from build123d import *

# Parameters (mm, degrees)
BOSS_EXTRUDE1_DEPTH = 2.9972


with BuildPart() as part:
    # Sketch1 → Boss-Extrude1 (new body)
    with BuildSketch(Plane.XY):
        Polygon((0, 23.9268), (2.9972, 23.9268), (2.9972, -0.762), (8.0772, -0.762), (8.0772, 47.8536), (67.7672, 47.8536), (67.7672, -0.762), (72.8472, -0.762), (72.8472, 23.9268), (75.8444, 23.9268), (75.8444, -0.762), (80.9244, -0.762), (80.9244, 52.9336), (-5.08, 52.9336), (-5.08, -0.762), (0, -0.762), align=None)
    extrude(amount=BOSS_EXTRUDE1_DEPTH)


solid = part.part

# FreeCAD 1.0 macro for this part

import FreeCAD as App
import Part
import Sketcher
from FreeCAD import Vector
Q = App.Units.Quantity


def add_polygon(sketch, points):
    """Adds a closed chain of lines whose ends are joined by coincident constraints."""
    first, n = sketch.GeometryCount, len(points)
    for a, b in zip(points, points[1:] + points[:1]):
        sketch.addGeometry(Part.LineSegment(App.Vector(*a, 0), App.Vector(*b, 0)), False)
    for i in range(n):
        sketch.addConstraint(Sketcher.Constraint("Coincident", first + i, 2, first + (i + 1) % n, 1))

doc = App.newDocument("Part")
body = doc.addObject("PartDesign::Body", "Body")

# Sketch on XY plane
sketch1 = body.newObject("Sketcher::SketchObject", "Sketch")
sketch1.AttachmentSupport = (doc.getObject("XY_Plane"), [""])
sketch1.MapMode = "FlatFace"
add_polygon(sketch1, [(0, 23.9), (3, 23.9), (3, -0.8), (8.1, -0.8), (8.1, 47.9), (67.8, 47.9), (67.8, -0.8), (72.8, -0.8), (72.8, 23.9), (75.8, 23.9), (75.8, -0.8), (80.9, -0.8), (80.9, 52.9), (-5.1, 52.9), (-5.1, -0.8), (0, -0.8)])  # lines 0-15
sketch1.addConstraint(Sketcher.Constraint("Horizontal", 0))
sketch1.addConstraint(Sketcher.Constraint("Vertical", 1))
sketch1.addConstraint(Sketcher.Constraint("Horizontal", 2))
sketch1.addConstraint(Sketcher.Constraint("Vertical", 3))
sketch1.addConstraint(Sketcher.Constraint("Horizontal", 4))
sketch1.addConstraint(Sketcher.Constraint("Vertical", 5))
sketch1.addConstraint(Sketcher.Constraint("Horizontal", 6))
sketch1.addConstraint(Sketcher.Constraint("Vertical", 7))
sketch1.addConstraint(Sketcher.Constraint("Horizontal", 8))
sketch1.addConstraint(Sketcher.Constraint("Vertical", 9))
sketch1.addConstraint(Sketcher.Constraint("Horizontal", 10))
sketch1.addConstraint(Sketcher.Constraint("Vertical", 11))
sketch1.addConstraint(Sketcher.Constraint("Horizontal", 12))
sketch1.addConstraint(Sketcher.Constraint("Vertical", 13))
sketch1.addConstraint(Sketcher.Constraint("Horizontal", 14))
sketch1.addConstraint(Sketcher.Constraint("Vertical", 15))
sketch1.addConstraint(Sketcher.Constraint("PointOnObject", 14, 2, -2))
sketch1.addConstraint(Sketcher.Constraint("Horizontal", 2, 2, 5, 2))
sketch1.addConstraint(Sketcher.Constraint("Horizontal", 0, 2, 7, 2))
sketch1.addConstraint(Sketcher.Constraint("Horizontal", 6, 2, 9, 2))
sketch1.addConstraint(Sketcher.Constraint("Horizontal", 10, 2, 13, 2))
sketch1.addConstraint(Sketcher.Constraint("Equal", 2, 6))
sketch1.addConstraint(Sketcher.Constraint("Equal", 0, 8))
sketch1.addConstraint(Sketcher.Constraint("Equal", 6, 10))
sketch1.addConstraint(Sketcher.Constraint("Equal", 10, 14))
sketch1.addConstraint(Sketcher.Constraint("DistanceX", 2, 1, 2, 2, Q("0.2 in")))
sketch1.addConstraint(Sketcher.Constraint("DistanceX", 4, 1, 4, 2, Q("2.35 in")))
sketch1.addConstraint(Sketcher.Constraint("DistanceY", 4, 2, 11, 2, Q("0.2 in")))
sketch1.addConstraint(Sketcher.Constraint("DistanceX", 0, 1, 0, 2, Q("0.118 in")))
sketch1.addConstraint(Sketcher.Constraint("DistanceY", 1, 2, 1, 1, Q("0.972 in")))
sketch1.addConstraint(Sketcher.Constraint("DistanceY", 3, 1, 3, 2, Q("1.914 in")))
sketch1.addConstraint(Sketcher.Constraint("DistanceY", 1, 2, -1, 1, Q("0.03 in")))
pad1 = body.newObject("PartDesign::Pad", "Pad")
pad1.Profile = sketch1
pad1.Length = Q("0.118 in")

doc.recompute()
